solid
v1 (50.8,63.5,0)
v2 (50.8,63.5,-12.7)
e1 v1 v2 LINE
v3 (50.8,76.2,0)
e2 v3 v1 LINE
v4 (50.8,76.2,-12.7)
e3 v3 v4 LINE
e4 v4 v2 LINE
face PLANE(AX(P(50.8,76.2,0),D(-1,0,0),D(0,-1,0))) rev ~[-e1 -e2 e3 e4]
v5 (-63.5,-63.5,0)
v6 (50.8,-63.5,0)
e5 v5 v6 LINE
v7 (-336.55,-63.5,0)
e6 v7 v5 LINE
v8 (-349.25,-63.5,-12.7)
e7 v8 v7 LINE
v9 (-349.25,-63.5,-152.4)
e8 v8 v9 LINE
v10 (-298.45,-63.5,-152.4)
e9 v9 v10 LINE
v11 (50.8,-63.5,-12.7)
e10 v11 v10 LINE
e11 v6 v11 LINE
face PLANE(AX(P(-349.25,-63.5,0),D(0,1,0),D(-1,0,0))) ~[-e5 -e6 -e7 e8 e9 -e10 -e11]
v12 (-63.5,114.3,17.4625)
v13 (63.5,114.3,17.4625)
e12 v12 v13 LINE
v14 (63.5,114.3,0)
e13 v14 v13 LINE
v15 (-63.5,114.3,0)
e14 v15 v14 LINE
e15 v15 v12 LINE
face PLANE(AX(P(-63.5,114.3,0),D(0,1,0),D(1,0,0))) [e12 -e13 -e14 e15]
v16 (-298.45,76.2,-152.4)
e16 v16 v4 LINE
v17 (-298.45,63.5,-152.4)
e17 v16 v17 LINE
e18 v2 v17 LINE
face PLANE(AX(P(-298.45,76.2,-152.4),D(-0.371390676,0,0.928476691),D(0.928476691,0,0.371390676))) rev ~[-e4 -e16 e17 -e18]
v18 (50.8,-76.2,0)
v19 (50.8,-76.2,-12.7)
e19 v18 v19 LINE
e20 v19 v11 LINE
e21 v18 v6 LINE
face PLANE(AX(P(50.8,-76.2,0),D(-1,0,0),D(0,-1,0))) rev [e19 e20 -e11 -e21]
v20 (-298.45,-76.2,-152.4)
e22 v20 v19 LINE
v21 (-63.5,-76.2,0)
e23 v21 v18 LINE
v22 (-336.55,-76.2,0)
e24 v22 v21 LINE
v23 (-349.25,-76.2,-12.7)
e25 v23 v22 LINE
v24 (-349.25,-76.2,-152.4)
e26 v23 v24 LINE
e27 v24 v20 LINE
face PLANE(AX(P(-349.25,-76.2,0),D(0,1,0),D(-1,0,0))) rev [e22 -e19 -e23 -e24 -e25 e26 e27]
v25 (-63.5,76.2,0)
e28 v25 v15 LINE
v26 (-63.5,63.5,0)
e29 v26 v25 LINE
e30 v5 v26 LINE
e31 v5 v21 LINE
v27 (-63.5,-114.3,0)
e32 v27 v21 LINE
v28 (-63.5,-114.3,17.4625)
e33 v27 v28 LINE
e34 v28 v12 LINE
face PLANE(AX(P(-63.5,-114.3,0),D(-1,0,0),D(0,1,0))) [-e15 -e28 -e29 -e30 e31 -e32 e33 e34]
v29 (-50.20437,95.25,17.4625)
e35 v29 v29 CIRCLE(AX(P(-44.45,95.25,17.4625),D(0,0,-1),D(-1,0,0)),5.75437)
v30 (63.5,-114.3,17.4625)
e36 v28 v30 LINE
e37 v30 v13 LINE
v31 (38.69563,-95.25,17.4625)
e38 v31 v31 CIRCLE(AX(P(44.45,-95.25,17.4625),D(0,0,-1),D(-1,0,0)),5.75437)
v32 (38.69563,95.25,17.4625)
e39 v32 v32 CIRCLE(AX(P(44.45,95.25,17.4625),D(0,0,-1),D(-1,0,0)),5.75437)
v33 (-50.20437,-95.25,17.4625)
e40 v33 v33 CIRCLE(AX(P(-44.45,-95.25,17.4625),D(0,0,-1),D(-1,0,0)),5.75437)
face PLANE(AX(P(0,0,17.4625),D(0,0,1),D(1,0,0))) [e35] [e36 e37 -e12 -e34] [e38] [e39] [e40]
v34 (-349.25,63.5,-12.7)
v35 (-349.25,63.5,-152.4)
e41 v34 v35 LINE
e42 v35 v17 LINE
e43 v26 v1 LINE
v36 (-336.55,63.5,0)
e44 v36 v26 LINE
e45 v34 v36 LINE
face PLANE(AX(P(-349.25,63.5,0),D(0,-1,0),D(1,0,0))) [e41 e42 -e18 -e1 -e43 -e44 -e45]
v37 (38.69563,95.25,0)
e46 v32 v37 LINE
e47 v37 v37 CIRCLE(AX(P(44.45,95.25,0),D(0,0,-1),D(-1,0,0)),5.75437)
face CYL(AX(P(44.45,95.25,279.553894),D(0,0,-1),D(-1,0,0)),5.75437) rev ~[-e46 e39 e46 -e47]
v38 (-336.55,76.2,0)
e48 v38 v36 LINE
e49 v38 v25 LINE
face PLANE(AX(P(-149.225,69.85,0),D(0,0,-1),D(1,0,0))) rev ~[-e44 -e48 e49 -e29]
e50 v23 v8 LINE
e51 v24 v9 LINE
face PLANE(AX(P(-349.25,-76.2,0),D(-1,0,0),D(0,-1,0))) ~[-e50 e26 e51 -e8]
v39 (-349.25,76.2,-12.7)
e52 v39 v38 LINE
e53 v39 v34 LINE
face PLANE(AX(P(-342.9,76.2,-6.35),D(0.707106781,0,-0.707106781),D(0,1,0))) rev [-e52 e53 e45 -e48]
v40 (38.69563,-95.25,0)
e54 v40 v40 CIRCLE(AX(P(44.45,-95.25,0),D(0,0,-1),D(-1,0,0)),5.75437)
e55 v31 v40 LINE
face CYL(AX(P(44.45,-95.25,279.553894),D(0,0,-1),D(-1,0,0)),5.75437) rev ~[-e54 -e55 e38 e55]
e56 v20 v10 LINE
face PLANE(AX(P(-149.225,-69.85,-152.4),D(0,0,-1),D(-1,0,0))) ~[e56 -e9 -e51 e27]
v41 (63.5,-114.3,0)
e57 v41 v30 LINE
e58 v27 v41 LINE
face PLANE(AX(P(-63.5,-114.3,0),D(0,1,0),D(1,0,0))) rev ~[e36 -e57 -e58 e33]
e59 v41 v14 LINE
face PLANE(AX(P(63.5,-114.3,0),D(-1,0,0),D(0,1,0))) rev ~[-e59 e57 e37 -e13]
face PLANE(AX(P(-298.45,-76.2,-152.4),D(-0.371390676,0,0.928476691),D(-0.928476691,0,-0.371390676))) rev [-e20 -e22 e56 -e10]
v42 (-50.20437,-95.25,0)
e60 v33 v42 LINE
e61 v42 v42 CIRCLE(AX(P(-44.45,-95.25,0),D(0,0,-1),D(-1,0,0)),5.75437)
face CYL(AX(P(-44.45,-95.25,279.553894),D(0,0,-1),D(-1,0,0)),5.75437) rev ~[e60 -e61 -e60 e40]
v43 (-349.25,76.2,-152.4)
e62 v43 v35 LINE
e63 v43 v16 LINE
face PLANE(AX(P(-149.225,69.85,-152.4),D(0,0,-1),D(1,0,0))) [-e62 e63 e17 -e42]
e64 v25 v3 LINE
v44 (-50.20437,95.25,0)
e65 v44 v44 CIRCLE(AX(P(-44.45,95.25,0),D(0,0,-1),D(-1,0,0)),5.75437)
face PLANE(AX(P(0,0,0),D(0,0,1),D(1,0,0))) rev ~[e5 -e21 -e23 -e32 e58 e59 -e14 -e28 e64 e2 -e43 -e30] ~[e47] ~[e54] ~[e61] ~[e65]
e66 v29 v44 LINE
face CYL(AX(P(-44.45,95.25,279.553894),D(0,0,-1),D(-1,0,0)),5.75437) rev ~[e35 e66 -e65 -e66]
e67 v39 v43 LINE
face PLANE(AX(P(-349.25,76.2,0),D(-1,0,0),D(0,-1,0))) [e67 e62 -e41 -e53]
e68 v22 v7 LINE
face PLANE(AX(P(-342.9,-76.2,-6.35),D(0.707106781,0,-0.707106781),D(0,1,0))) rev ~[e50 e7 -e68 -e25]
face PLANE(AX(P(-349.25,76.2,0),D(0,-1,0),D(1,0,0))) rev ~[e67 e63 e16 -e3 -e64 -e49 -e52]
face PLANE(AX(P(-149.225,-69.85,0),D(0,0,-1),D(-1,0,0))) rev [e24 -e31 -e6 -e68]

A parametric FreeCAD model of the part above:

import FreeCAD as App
import Part
import Sketcher
Q = App.Units.Quantity


def edges_at(feature, points):
    """Names of the edges that pass closest to the given points."""
    edges = feature.Shape.Edges
    near = lambda p: min(range(len(edges)), key=lambda i: edges[i].distToShape(Part.Vertex(*p))[0])
    return sorted({f"Edge{near(p) + 1}" for p in points})

doc = App.newDocument("Part")
params = doc.addObject("Spreadsheet::Sheet", "Params")
for row, (alias, value) in enumerate([
    ("sketch1_width", "5 in"),
    ("sketch1_height", "9 in"),
    ("pad1_length", "0.6875 in"),
    ("hole_diameter", "0.4531 in"),
    ("sketch3_height", "0.5 in"),
    ("sketch3_width", "15.75 in"),
    ("pad2_length", "6 in"),
    ("sketch4_height", "5.5 in"),
    ("sketch4_width", "13.75 in"),
    ("chamfer_size", "0.5 in"),
], start=1):
    params.set(f"A{row}", alias)
    params.set(f"B{row}", "=" + value)
    params.setAlias(f"B{row}", alias)

body = doc.addObject("PartDesign::Body", "Body")

sketch1 = body.newObject("Sketcher::SketchObject", "Sketch")
sketch1.AttachmentSupport = (doc.getObject("XY_Plane"), [""])
sketch1.MapMode = "FlatFace"
sketch1.addGeometry([
    Part.LineSegment(App.Vector(-64, 114, 0), App.Vector(-64, -114, 0)),
    Part.LineSegment(App.Vector(-64, -114, 0), App.Vector(64, -114, 0)),
    Part.LineSegment(App.Vector(64, -114, 0), App.Vector(64, 114, 0)),
    Part.LineSegment(App.Vector(64, 114, 0), App.Vector(-64, 114, 0)),
], False)
sketch1.addConstraint([
    Sketcher.Constraint("Coincident", 0, 2, 1, 1),
    Sketcher.Constraint("Coincident", 1, 2, 2, 1),
    Sketcher.Constraint("Coincident", 2, 2, 3, 1),
    Sketcher.Constraint("Coincident", 3, 2, 0, 1),
    Sketcher.Constraint("Vertical", 0),
    Sketcher.Constraint("Horizontal", 1),
    Sketcher.Constraint("Vertical", 2),
    Sketcher.Constraint("Horizontal", 3),
    Sketcher.Constraint("Symmetric", 0, 2, 2, 2, -1, 1),
    Sketcher.Constraint("DistanceX", 1, 1, 1, 2, Q("5 in")),
    Sketcher.Constraint("DistanceY", 0, 2, 0, 1, Q("9 in")),
])
sketch1.setExpression("Constraints[9]", "Params.sketch1_width")
sketch1.setExpression("Constraints[10]", "Params.sketch1_height")
pad1 = body.newObject("PartDesign::Pad", "Pad")
pad1.Profile = sketch1
pad1.setExpression("Length", "Params.pad1_length")

sketch2 = body.newObject("Sketcher::SketchObject", "Sketch001")
sketch2.AttachmentSupport = (doc.getObject("XY_Plane"), [""])
sketch2.MapMode = "FlatFace"
sketch2.AttachmentOffset = App.Placement(App.Vector(0, 0, 0.6875 * 25.4), App.Rotation())
sketch2.addGeometry([
    Part.Circle(App.Vector(-44, 95, 0), App.Vector(0, 0, 1), 6),
    Part.Circle(App.Vector(44, 95, 0), App.Vector(0, 0, 1), 6),
    Part.Circle(App.Vector(44, -95, 0), App.Vector(0, 0, 1), 6),
    Part.Circle(App.Vector(-44, -95, 0), App.Vector(0, 0, 1), 6),
], False)
sketch2.addConstraint([
    Sketcher.Constraint("Equal", 0, 1),
    Sketcher.Constraint("Equal", 1, 2),
    Sketcher.Constraint("Equal", 2, 3),
    Sketcher.Constraint("Symmetric", 0, 3, 2, 3, -1, 1),
    Sketcher.Constraint("Symmetric", 1, 3, 3, 3, -1, 1),
    Sketcher.Constraint("Symmetric", 0, 3, 1, 3, -2),
    Sketcher.Constraint("Diameter", 0, Q("0.4531 in")),
    Sketcher.Constraint("DistanceX", 0, 3, 1, 3, Q("3.5 in")),
    Sketcher.Constraint("DistanceY", 2, 3, 1, 3, Q("7.5 in")),
])
doc.recompute()
hole = body.newObject("PartDesign::Hole", "Hole")
hole.Profile = sketch2
hole.ThreadType = "None"
hole.setExpression("Diameter", "Params.hole_diameter")
hole.DepthType = "ThroughAll"

sketch3 = body.newObject("Sketcher::SketchObject", "Sketch002")
sketch3.AttachmentSupport = (doc.getObject("XY_Plane"), [""])
sketch3.MapMode = "FlatFace"
sketch3.addGeometry([
    Part.LineSegment(App.Vector(-349, 64, 0), App.Vector(-349, 76, 0)),
    Part.LineSegment(App.Vector(-349, 76, 0), App.Vector(51, 76, 0)),
    Part.LineSegment(App.Vector(51, 76, 0), App.Vector(51, 64, 0)),
    Part.LineSegment(App.Vector(51, 64, 0), App.Vector(-349, 64, 0)),
], False)
sketch3.addConstraint([
    Sketcher.Constraint("Coincident", 0, 2, 1, 1),
    Sketcher.Constraint("Coincident", 1, 2, 2, 1),
    Sketcher.Constraint("Coincident", 2, 2, 3, 1),
    Sketcher.Constraint("Coincident", 3, 2, 0, 1),
    Sketcher.Constraint("Vertical", 0),
    Sketcher.Constraint("Horizontal", 1),
    Sketcher.Constraint("Vertical", 2),
    Sketcher.Constraint("Horizontal", 3),
    Sketcher.Constraint("DistanceY", 0, 1, 0, 2, Q("0.5 in")),
    Sketcher.Constraint("DistanceY", -1, 1, 0, 2, Q("3 in")),
    Sketcher.Constraint("DistanceX", -1, 1, 1, 2, Q("2 in")),
    Sketcher.Constraint("DistanceX", 1, 1, 1, 2, Q("15.75 in")),
])
sketch3.setExpression("Constraints[8]", "Params.sketch3_height")
sketch3.setExpression("Constraints[11]", "Params.sketch3_width")
pad2 = body.newObject("PartDesign::Pad", "Pad001")
pad2.Profile = sketch3
pad2.setExpression("Length", "Params.pad2_length")
pad2.Reversed = True

sketch4 = body.newObject("Sketcher::SketchObject", "Sketch003")
sketch4.AttachmentSupport = (doc.getObject("XZ_Plane"), [""])
sketch4.MapMode = "FlatFace"
sketch4.AttachmentOffset = App.Placement(App.Vector(0, 0, -3 * 25.4), App.Rotation())
sketch4.addGeometry([
    Part.LineSegment(App.Vector(51, -13, 0), App.Vector(51, -152, 0)),
    Part.LineSegment(App.Vector(51, -152, 0), App.Vector(-298, -152, 0)),
    Part.LineSegment(App.Vector(-298, -152, 0), App.Vector(51, -13, 0)),
], False)
sketch4.addConstraint([
    Sketcher.Constraint("Coincident", 0, 2, 1, 1),
    Sketcher.Constraint("Coincident", 1, 2, 2, 1),
    Sketcher.Constraint("Coincident", 2, 2, 0, 1),
    Sketcher.Constraint("Vertical", 0),
    Sketcher.Constraint("Horizontal", 1),
    Sketcher.Constraint("DistanceY", 0, 2, 0, 1, Q("5.5 in")),
    Sketcher.Constraint("DistanceX", -1, 1, 0, 2, Q("2 in")),
    Sketcher.Constraint("DistanceY", 0, 2, -1, 1, Q("6 in")),
    Sketcher.Constraint("DistanceX", 1, 2, 1, 1, Q("13.75 in")),
])
sketch4.setExpression("Constraints[5]", "Params.sketch4_height")
sketch4.setExpression("Constraints[8]", "Params.sketch4_width")
pocket1 = body.newObject("PartDesign::Pocket", "Pocket")
pocket1.Profile = sketch4
pocket1.Type = "ThroughAll"
pocket1.Reversed = True
doc.recompute()

chamfer = body.newObject("PartDesign::Chamfer", "Chamfer")
chamfer.Base = (pocket1, edges_at(pocket1, [(-349.25, 69.85, 0)]))
chamfer.setExpression("Size", "Params.chamfer_size")
body2 = doc.addObject("PartDesign::Body", "Body001")
doc.recompute()

body2.BaseFeature = body
doc.recompute()

mirroring = doc.addObject("Part::Mirroring", "Mirroring")
mirroring.Source = body
mirroring.Base = App.Vector(0, 0, 0)
mirroring.Normal = App.Vector(0, -1, 0)
body3 = doc.addObject("PartDesign::Body", "Body002")
body3.BaseFeature = mirroring
boolean = body2.newObject("PartDesign::Boolean", "Boolean")
boolean.Type = "Fuse"
boolean.addObjects([body3])
doc.recompute()
mirroring.Visibility = False

doc.recompute()
